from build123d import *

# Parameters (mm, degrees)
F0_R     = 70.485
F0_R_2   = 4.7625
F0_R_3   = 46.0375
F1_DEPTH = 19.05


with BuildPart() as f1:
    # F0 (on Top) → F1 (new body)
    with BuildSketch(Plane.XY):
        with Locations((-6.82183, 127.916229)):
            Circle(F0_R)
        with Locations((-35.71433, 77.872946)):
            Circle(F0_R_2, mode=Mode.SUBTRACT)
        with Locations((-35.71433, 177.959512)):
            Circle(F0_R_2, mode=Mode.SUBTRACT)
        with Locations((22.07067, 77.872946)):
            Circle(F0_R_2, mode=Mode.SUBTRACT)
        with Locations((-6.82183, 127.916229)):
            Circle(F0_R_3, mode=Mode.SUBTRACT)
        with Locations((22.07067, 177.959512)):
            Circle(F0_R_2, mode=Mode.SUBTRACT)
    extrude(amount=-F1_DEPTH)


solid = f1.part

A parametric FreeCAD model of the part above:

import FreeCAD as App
import Part
import Sketcher

V = App.Vector
Q = App.Units.Quantity

doc = App.newDocument("Part")
body = doc.addObject("PartDesign::Body", "Body")

sketch1 = body.newObject("Sketcher::SketchObject", "Sketch")
sketch1.AttachmentSupport = (doc.getObject("XY_Plane"), [""])
sketch1.MapMode = "FlatFace"
sketch1.addGeometry([
    Part.Circle(V(-6.82183, 127.916229, 0), V(0, 0, 1), 70.485),
    Part.Circle(V(-35.71433, 77.872946, 0), V(0, 0, 1), 4.7625),
    Part.Circle(V(22.07067, 77.872946, 0), V(0, 0, 1), 4.7625),
    Part.Circle(V(-35.71433, 177.959512, 0), V(0, 0, 1), 4.7625),
    Part.Circle(V(-6.82183, 127.916229, 0), V(0, 0, 1), 46.0375),
    Part.Circle(V(22.07067, 177.959512, 0), V(0, 0, 1), 4.7625),
], False)
sketch1.addConstraint([
    Sketcher.Constraint("Coincident", 4, 3, 0, 3),
    Sketcher.Constraint("Equal", 1, 2),
    Sketcher.Constraint("Equal", 2, 3),
    Sketcher.Constraint("Equal", 3, 5),
    Sketcher.Constraint("Horizontal", 1, 3, 2, 3),
    Sketcher.Constraint("Horizontal", 3, 3, 5, 3),
    Sketcher.Constraint("Vertical", 1, 3, 3, 3),
    Sketcher.Constraint("Vertical", 2, 3, 5, 3),
    Sketcher.Constraint("Diameter", 0, Q("5.55 in")),
    Sketcher.Constraint("Diameter", 1, Q("0.375 in")),
    Sketcher.Constraint("Diameter", 4, Q("3.625 in")),
    Sketcher.Constraint("DistanceX", 1, 3, 2, 3, Q("2.275 in")),
    Sketcher.Constraint("DistanceX", 1, 3, 0, 3, Q("1.1375 in")),
    Sketcher.Constraint("DistanceX", 0, 3, -1, 1, 6.82183),
    Sketcher.Constraint("DistanceY", -1, 1, 0, 3, 127.916229),
    Sketcher.Constraint("DistanceY", -1, 1, 3, 3, 177.959512),
    Sketcher.Constraint("DistanceY", -1, 1, 1, 3, 77.872946),
])
pad1 = body.newObject("PartDesign::Pad", "Pad")
pad1.Profile = sketch1
pad1.Length = Q("0.75 in")
pad1.Reversed = True

doc.recompute()
